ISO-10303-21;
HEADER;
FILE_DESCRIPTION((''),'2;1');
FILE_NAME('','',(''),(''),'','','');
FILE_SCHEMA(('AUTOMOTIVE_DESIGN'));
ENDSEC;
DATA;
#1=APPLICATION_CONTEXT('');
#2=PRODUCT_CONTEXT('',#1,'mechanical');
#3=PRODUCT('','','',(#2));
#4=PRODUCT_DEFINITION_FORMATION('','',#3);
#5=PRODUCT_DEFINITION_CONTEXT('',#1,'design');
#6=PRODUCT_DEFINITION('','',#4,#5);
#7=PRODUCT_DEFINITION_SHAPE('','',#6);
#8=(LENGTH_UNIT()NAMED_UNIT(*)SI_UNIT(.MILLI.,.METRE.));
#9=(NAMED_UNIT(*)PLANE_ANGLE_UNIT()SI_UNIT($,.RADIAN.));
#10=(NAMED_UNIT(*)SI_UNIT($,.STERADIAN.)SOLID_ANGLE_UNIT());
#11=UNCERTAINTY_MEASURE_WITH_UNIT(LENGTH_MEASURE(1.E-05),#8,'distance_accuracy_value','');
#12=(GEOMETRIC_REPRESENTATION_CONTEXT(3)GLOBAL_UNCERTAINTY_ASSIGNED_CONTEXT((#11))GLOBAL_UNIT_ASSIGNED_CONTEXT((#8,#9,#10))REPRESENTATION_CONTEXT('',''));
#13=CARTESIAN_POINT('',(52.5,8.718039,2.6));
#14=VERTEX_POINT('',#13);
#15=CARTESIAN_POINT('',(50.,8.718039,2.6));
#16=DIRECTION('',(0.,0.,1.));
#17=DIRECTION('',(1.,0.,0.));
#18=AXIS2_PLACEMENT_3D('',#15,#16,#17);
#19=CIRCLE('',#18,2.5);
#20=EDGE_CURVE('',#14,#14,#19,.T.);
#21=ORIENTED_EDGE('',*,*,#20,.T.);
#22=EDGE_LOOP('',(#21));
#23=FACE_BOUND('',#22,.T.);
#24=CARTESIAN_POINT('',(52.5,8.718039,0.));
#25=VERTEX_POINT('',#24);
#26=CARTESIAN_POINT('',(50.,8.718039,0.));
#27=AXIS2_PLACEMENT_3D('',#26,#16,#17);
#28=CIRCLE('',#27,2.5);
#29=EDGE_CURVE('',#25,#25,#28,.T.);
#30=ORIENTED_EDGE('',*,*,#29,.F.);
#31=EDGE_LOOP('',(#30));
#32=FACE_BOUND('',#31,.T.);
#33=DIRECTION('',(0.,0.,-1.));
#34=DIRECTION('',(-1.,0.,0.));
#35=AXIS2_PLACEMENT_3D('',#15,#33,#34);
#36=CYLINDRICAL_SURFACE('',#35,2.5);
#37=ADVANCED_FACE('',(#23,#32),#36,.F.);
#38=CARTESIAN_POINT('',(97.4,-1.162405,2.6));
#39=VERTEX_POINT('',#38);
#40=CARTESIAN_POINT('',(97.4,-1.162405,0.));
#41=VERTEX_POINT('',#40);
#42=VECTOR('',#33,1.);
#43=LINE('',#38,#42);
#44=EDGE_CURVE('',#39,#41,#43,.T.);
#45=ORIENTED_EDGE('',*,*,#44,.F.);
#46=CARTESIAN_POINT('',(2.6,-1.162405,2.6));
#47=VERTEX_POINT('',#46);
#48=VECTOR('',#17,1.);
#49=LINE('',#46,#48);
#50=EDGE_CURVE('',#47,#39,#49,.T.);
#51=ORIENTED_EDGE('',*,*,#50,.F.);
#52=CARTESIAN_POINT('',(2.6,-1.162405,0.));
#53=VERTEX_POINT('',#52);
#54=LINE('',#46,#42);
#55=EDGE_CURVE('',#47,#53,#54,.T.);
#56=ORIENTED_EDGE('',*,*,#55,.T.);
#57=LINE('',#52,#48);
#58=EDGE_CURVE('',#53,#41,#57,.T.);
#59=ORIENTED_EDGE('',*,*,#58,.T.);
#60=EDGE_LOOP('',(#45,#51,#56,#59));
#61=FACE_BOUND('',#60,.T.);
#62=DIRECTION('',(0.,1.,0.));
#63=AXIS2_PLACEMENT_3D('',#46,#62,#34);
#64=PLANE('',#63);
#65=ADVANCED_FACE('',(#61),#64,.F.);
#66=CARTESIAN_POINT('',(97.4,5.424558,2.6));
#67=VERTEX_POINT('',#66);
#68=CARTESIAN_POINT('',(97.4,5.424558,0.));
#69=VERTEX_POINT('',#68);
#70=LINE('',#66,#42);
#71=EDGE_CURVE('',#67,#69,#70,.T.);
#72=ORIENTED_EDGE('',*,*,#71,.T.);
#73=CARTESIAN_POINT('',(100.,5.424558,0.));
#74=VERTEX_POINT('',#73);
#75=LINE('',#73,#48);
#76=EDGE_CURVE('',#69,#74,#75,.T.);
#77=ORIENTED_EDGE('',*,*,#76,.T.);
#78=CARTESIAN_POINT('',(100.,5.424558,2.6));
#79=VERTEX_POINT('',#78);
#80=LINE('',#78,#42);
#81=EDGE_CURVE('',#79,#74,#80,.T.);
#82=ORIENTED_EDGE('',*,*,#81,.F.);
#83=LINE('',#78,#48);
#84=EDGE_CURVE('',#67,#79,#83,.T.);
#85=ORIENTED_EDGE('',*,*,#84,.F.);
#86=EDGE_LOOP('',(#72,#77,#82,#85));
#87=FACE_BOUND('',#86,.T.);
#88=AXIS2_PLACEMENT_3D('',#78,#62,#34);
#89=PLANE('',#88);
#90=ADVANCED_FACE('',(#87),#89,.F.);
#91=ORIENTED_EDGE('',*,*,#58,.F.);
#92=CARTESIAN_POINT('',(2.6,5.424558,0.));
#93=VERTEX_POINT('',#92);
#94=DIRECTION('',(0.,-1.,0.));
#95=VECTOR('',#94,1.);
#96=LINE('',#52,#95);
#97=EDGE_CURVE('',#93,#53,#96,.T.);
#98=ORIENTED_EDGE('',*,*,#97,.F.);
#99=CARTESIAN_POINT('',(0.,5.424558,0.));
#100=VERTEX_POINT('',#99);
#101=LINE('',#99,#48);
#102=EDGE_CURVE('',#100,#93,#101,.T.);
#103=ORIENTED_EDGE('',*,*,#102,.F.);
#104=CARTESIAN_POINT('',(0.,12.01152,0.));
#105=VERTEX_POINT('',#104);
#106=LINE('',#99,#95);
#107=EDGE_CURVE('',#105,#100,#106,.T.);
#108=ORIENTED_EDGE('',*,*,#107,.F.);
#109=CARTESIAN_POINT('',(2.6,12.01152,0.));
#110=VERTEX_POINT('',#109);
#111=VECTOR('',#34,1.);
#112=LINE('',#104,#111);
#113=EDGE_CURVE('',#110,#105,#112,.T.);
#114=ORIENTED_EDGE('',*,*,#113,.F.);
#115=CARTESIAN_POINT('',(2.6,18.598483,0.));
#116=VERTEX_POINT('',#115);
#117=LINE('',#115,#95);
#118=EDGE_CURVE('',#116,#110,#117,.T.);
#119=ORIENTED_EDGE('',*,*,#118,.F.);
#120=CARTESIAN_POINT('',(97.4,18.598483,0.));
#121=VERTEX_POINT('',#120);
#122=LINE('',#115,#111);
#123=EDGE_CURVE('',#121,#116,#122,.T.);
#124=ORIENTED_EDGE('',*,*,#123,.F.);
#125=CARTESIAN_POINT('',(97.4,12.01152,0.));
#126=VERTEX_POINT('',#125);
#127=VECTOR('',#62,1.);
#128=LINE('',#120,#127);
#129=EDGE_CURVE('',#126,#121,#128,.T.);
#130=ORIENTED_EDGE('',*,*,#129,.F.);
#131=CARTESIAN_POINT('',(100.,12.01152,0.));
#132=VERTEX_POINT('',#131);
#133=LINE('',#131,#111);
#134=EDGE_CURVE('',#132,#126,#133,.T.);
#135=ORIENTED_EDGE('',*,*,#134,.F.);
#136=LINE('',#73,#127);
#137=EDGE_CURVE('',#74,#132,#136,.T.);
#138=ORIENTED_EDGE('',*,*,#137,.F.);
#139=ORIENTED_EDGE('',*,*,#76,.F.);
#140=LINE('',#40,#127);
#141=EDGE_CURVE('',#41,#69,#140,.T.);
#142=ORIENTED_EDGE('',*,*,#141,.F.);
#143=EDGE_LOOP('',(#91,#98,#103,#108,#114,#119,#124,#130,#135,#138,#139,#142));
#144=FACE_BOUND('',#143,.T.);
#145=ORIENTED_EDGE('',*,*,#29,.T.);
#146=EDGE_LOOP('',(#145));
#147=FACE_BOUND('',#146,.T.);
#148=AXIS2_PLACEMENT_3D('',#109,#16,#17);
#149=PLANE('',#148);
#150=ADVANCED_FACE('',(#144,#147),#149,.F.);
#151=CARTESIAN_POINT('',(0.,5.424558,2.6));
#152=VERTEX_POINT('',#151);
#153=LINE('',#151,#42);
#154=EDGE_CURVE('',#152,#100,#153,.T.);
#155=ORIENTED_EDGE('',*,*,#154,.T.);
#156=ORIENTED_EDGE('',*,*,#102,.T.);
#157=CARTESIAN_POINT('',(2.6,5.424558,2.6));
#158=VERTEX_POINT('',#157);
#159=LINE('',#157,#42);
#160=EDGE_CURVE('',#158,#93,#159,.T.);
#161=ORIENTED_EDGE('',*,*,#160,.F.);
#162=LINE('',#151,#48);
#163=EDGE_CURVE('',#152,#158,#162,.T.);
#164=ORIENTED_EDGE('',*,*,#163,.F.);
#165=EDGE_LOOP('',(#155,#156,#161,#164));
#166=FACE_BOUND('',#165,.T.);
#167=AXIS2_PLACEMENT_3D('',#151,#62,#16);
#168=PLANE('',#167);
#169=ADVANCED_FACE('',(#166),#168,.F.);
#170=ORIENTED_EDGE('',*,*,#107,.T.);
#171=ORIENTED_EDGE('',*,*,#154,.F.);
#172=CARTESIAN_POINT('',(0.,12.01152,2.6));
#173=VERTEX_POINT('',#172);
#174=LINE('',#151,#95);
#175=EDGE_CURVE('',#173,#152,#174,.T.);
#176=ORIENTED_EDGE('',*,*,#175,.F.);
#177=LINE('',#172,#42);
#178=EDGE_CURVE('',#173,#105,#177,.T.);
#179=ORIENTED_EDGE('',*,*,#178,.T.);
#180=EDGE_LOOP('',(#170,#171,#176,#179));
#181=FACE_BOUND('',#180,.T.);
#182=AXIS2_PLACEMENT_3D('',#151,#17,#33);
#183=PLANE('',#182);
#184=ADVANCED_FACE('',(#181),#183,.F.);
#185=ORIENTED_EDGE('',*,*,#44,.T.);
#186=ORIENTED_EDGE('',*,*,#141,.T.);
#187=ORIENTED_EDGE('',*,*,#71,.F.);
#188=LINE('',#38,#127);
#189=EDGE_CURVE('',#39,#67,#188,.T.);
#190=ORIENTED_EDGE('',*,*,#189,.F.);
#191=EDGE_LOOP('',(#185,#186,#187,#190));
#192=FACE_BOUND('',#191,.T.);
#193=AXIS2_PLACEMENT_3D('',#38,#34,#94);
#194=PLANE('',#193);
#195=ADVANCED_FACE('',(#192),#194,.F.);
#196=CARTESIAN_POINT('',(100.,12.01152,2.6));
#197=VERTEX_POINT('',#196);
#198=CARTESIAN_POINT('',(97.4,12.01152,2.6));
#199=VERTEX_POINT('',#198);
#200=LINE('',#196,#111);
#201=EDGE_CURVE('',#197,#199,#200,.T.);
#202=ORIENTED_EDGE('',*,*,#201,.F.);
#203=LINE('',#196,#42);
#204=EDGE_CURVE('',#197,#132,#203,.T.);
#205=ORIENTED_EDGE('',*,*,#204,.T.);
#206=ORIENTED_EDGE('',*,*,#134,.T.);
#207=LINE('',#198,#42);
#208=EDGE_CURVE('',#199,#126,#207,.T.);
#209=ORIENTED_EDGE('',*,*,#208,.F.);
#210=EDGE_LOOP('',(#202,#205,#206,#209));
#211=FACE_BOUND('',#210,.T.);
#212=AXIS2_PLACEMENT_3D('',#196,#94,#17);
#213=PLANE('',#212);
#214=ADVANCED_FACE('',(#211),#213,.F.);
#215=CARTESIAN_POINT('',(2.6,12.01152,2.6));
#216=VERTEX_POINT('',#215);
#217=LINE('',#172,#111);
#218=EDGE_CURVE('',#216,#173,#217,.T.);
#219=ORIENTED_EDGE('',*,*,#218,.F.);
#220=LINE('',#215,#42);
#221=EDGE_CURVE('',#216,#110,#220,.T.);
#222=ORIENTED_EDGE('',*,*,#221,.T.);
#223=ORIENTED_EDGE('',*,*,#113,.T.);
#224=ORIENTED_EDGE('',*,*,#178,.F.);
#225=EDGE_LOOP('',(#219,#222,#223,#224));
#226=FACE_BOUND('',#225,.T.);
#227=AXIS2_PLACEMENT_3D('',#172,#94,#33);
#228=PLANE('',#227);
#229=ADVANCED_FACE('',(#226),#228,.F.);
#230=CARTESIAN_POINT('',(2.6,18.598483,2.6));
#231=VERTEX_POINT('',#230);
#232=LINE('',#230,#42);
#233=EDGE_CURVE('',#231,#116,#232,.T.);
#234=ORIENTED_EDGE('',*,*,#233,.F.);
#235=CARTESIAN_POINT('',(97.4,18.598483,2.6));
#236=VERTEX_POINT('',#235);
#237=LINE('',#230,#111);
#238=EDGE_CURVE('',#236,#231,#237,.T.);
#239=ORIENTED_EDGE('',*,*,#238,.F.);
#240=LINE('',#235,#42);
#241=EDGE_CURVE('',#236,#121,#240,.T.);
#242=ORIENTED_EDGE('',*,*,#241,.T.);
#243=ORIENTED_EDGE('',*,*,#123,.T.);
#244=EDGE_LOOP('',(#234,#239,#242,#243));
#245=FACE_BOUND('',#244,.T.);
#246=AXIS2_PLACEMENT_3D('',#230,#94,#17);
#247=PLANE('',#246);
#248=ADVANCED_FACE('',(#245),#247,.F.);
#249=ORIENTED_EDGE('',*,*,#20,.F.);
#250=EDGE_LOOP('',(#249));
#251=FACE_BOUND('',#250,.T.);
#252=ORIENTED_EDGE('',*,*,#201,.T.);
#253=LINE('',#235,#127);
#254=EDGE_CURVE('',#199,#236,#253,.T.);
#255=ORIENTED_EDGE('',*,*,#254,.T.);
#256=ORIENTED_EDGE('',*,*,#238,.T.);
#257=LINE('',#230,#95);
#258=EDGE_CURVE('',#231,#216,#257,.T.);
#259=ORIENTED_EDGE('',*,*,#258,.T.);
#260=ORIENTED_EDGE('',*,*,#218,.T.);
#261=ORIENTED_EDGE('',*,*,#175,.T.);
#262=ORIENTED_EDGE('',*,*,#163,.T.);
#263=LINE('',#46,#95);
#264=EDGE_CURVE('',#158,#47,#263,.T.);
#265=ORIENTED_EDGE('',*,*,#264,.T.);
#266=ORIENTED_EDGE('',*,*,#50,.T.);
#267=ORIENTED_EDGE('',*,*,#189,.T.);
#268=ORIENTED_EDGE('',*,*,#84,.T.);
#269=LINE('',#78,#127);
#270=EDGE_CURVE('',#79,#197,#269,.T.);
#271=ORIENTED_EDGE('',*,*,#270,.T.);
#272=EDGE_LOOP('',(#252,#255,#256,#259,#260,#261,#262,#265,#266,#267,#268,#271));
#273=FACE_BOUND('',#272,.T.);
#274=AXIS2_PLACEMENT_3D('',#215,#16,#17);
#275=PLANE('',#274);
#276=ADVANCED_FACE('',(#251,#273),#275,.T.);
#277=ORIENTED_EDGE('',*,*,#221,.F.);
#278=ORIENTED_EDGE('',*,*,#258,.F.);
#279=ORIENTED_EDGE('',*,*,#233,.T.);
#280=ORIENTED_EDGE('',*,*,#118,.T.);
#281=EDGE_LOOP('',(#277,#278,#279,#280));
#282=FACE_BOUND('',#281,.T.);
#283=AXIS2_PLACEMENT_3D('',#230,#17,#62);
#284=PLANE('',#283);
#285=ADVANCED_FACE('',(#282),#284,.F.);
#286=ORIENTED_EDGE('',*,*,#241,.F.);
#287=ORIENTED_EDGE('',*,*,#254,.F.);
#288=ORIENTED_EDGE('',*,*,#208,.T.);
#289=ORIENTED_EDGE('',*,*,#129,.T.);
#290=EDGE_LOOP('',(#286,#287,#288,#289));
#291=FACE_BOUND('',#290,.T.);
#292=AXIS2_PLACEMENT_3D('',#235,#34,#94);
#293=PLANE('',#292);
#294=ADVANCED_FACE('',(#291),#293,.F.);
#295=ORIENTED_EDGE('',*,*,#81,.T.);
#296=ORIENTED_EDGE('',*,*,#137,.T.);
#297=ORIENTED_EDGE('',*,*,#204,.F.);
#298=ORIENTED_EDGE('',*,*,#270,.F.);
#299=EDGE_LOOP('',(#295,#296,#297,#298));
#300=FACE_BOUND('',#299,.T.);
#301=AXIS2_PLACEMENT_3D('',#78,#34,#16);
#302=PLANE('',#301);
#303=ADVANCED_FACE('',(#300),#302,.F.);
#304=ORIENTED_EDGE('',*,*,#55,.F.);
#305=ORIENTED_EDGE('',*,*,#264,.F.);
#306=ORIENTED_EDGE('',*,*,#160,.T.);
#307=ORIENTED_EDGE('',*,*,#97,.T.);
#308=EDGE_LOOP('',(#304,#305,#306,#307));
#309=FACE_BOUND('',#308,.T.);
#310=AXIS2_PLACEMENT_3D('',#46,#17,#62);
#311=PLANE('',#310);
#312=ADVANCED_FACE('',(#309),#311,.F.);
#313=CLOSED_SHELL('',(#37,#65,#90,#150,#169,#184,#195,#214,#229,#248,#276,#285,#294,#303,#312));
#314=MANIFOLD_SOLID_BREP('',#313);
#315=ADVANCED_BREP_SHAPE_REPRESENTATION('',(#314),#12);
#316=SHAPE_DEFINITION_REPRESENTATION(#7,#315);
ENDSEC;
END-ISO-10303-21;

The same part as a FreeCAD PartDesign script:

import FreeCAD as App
import Part
import Sketcher

V = App.Vector
Q = App.Units.Quantity


def add_polygon(sketch, points):
    """Adds a closed chain of lines whose ends are joined by coincident constraints."""
    first, n = sketch.GeometryCount, len(points)
    for a, b in zip(points, points[1:] + points[:1]):
        sketch.addGeometry(Part.LineSegment(App.Vector(*a, 0), App.Vector(*b, 0)), False)
    for i in range(n):
        sketch.addConstraint(Sketcher.Constraint("Coincident", first + i, 2, first + (i + 1) % n, 1))

doc = App.newDocument("Part")
params = doc.addObject("Spreadsheet::Sheet", "Params")
for row, (alias, value) in enumerate([
    ("sketch1_diameter", "5 mm"),
    ("sketch1_width", "94.8 mm"),
    ("sketch1_width2", "2.6 mm"),
    ("pad1_length", "2.6 mm"),
], start=1):
    params.set(f"A{row}", alias)
    params.set(f"B{row}", "=" + value)
    params.setAlias(f"B{row}", alias)

body = doc.addObject("PartDesign::Body", "Body")

sketch1 = body.newObject("Sketcher::SketchObject", "Sketch")
sketch1.AttachmentSupport = (doc.getObject("XY_Plane"), [""])
sketch1.MapMode = "FlatFace"
add_polygon(sketch1, [(2.6, -1.2), (97.4, -1.2), (97.4, 5.4), (100, 5.4), (100, 12), (97.4, 12), (97.4, 18.6), (2.6, 18.6), (2.6, 12), (0, 12), (0, 5.4), (2.6, 5.4)])
sketch1.addGeometry(Part.Circle(V(50, 8.7, 0), V(0, 0, 1), 2.5), False)
sketch1.addConstraint([
    Sketcher.Constraint("Horizontal", 0),
    Sketcher.Constraint("Vertical", 1),
    Sketcher.Constraint("Horizontal", 2),
    Sketcher.Constraint("Vertical", 3),
    Sketcher.Constraint("Horizontal", 4),
    Sketcher.Constraint("Vertical", 5),
    Sketcher.Constraint("Horizontal", 6),
    Sketcher.Constraint("Vertical", 7),
    Sketcher.Constraint("Horizontal", 8),
    Sketcher.Constraint("Vertical", 9),
    Sketcher.Constraint("Horizontal", 10),
    Sketcher.Constraint("Vertical", 11),
    Sketcher.Constraint("PointOnObject", 8, 2, -2),
    Sketcher.Constraint("Horizontal", 4, 2, 7, 2),
    Sketcher.Constraint("Horizontal", 2, 2, 9, 2),
    Sketcher.Constraint("Vertical", 1, 2, 4, 2),
    Sketcher.Constraint("Vertical", 7, 2, 10, 2),
    Sketcher.Constraint("Equal", 4, 8),
    Sketcher.Constraint("Equal", 1, 3),
    Sketcher.Constraint("Equal", 3, 5),
    Sketcher.Constraint("Diameter", 12, Q("5 mm")),
    Sketcher.Constraint("DistanceX", 0, 1, 0, 2, Q("94.8 mm")),
    Sketcher.Constraint("DistanceX", 2, 1, 2, 2, Q("2.6 mm")),
    Sketcher.Constraint("DistanceX", -1, 1, 12, 3, Q("50 mm")),
    Sketcher.Constraint("DistanceY", 1, 1, 1, 2, Q("6.586963 mm")),
    Sketcher.Constraint("DistanceY", -1, 1, 12, 3, Q("8.718039 mm")),
    Sketcher.Constraint("DistanceY", -1, 1, 3, 2, Q("12.01152 mm")),
])
sketch1.setExpression("Constraints[32]", "Params.sketch1_diameter")
sketch1.setExpression("Constraints[33]", "Params.sketch1_width")
sketch1.setExpression("Constraints[34]", "Params.sketch1_width2")
pad1 = body.newObject("PartDesign::Pad", "Pad")
pad1.Profile = sketch1
pad1.setExpression("Length", "Params.pad1_length")

doc.recompute()
